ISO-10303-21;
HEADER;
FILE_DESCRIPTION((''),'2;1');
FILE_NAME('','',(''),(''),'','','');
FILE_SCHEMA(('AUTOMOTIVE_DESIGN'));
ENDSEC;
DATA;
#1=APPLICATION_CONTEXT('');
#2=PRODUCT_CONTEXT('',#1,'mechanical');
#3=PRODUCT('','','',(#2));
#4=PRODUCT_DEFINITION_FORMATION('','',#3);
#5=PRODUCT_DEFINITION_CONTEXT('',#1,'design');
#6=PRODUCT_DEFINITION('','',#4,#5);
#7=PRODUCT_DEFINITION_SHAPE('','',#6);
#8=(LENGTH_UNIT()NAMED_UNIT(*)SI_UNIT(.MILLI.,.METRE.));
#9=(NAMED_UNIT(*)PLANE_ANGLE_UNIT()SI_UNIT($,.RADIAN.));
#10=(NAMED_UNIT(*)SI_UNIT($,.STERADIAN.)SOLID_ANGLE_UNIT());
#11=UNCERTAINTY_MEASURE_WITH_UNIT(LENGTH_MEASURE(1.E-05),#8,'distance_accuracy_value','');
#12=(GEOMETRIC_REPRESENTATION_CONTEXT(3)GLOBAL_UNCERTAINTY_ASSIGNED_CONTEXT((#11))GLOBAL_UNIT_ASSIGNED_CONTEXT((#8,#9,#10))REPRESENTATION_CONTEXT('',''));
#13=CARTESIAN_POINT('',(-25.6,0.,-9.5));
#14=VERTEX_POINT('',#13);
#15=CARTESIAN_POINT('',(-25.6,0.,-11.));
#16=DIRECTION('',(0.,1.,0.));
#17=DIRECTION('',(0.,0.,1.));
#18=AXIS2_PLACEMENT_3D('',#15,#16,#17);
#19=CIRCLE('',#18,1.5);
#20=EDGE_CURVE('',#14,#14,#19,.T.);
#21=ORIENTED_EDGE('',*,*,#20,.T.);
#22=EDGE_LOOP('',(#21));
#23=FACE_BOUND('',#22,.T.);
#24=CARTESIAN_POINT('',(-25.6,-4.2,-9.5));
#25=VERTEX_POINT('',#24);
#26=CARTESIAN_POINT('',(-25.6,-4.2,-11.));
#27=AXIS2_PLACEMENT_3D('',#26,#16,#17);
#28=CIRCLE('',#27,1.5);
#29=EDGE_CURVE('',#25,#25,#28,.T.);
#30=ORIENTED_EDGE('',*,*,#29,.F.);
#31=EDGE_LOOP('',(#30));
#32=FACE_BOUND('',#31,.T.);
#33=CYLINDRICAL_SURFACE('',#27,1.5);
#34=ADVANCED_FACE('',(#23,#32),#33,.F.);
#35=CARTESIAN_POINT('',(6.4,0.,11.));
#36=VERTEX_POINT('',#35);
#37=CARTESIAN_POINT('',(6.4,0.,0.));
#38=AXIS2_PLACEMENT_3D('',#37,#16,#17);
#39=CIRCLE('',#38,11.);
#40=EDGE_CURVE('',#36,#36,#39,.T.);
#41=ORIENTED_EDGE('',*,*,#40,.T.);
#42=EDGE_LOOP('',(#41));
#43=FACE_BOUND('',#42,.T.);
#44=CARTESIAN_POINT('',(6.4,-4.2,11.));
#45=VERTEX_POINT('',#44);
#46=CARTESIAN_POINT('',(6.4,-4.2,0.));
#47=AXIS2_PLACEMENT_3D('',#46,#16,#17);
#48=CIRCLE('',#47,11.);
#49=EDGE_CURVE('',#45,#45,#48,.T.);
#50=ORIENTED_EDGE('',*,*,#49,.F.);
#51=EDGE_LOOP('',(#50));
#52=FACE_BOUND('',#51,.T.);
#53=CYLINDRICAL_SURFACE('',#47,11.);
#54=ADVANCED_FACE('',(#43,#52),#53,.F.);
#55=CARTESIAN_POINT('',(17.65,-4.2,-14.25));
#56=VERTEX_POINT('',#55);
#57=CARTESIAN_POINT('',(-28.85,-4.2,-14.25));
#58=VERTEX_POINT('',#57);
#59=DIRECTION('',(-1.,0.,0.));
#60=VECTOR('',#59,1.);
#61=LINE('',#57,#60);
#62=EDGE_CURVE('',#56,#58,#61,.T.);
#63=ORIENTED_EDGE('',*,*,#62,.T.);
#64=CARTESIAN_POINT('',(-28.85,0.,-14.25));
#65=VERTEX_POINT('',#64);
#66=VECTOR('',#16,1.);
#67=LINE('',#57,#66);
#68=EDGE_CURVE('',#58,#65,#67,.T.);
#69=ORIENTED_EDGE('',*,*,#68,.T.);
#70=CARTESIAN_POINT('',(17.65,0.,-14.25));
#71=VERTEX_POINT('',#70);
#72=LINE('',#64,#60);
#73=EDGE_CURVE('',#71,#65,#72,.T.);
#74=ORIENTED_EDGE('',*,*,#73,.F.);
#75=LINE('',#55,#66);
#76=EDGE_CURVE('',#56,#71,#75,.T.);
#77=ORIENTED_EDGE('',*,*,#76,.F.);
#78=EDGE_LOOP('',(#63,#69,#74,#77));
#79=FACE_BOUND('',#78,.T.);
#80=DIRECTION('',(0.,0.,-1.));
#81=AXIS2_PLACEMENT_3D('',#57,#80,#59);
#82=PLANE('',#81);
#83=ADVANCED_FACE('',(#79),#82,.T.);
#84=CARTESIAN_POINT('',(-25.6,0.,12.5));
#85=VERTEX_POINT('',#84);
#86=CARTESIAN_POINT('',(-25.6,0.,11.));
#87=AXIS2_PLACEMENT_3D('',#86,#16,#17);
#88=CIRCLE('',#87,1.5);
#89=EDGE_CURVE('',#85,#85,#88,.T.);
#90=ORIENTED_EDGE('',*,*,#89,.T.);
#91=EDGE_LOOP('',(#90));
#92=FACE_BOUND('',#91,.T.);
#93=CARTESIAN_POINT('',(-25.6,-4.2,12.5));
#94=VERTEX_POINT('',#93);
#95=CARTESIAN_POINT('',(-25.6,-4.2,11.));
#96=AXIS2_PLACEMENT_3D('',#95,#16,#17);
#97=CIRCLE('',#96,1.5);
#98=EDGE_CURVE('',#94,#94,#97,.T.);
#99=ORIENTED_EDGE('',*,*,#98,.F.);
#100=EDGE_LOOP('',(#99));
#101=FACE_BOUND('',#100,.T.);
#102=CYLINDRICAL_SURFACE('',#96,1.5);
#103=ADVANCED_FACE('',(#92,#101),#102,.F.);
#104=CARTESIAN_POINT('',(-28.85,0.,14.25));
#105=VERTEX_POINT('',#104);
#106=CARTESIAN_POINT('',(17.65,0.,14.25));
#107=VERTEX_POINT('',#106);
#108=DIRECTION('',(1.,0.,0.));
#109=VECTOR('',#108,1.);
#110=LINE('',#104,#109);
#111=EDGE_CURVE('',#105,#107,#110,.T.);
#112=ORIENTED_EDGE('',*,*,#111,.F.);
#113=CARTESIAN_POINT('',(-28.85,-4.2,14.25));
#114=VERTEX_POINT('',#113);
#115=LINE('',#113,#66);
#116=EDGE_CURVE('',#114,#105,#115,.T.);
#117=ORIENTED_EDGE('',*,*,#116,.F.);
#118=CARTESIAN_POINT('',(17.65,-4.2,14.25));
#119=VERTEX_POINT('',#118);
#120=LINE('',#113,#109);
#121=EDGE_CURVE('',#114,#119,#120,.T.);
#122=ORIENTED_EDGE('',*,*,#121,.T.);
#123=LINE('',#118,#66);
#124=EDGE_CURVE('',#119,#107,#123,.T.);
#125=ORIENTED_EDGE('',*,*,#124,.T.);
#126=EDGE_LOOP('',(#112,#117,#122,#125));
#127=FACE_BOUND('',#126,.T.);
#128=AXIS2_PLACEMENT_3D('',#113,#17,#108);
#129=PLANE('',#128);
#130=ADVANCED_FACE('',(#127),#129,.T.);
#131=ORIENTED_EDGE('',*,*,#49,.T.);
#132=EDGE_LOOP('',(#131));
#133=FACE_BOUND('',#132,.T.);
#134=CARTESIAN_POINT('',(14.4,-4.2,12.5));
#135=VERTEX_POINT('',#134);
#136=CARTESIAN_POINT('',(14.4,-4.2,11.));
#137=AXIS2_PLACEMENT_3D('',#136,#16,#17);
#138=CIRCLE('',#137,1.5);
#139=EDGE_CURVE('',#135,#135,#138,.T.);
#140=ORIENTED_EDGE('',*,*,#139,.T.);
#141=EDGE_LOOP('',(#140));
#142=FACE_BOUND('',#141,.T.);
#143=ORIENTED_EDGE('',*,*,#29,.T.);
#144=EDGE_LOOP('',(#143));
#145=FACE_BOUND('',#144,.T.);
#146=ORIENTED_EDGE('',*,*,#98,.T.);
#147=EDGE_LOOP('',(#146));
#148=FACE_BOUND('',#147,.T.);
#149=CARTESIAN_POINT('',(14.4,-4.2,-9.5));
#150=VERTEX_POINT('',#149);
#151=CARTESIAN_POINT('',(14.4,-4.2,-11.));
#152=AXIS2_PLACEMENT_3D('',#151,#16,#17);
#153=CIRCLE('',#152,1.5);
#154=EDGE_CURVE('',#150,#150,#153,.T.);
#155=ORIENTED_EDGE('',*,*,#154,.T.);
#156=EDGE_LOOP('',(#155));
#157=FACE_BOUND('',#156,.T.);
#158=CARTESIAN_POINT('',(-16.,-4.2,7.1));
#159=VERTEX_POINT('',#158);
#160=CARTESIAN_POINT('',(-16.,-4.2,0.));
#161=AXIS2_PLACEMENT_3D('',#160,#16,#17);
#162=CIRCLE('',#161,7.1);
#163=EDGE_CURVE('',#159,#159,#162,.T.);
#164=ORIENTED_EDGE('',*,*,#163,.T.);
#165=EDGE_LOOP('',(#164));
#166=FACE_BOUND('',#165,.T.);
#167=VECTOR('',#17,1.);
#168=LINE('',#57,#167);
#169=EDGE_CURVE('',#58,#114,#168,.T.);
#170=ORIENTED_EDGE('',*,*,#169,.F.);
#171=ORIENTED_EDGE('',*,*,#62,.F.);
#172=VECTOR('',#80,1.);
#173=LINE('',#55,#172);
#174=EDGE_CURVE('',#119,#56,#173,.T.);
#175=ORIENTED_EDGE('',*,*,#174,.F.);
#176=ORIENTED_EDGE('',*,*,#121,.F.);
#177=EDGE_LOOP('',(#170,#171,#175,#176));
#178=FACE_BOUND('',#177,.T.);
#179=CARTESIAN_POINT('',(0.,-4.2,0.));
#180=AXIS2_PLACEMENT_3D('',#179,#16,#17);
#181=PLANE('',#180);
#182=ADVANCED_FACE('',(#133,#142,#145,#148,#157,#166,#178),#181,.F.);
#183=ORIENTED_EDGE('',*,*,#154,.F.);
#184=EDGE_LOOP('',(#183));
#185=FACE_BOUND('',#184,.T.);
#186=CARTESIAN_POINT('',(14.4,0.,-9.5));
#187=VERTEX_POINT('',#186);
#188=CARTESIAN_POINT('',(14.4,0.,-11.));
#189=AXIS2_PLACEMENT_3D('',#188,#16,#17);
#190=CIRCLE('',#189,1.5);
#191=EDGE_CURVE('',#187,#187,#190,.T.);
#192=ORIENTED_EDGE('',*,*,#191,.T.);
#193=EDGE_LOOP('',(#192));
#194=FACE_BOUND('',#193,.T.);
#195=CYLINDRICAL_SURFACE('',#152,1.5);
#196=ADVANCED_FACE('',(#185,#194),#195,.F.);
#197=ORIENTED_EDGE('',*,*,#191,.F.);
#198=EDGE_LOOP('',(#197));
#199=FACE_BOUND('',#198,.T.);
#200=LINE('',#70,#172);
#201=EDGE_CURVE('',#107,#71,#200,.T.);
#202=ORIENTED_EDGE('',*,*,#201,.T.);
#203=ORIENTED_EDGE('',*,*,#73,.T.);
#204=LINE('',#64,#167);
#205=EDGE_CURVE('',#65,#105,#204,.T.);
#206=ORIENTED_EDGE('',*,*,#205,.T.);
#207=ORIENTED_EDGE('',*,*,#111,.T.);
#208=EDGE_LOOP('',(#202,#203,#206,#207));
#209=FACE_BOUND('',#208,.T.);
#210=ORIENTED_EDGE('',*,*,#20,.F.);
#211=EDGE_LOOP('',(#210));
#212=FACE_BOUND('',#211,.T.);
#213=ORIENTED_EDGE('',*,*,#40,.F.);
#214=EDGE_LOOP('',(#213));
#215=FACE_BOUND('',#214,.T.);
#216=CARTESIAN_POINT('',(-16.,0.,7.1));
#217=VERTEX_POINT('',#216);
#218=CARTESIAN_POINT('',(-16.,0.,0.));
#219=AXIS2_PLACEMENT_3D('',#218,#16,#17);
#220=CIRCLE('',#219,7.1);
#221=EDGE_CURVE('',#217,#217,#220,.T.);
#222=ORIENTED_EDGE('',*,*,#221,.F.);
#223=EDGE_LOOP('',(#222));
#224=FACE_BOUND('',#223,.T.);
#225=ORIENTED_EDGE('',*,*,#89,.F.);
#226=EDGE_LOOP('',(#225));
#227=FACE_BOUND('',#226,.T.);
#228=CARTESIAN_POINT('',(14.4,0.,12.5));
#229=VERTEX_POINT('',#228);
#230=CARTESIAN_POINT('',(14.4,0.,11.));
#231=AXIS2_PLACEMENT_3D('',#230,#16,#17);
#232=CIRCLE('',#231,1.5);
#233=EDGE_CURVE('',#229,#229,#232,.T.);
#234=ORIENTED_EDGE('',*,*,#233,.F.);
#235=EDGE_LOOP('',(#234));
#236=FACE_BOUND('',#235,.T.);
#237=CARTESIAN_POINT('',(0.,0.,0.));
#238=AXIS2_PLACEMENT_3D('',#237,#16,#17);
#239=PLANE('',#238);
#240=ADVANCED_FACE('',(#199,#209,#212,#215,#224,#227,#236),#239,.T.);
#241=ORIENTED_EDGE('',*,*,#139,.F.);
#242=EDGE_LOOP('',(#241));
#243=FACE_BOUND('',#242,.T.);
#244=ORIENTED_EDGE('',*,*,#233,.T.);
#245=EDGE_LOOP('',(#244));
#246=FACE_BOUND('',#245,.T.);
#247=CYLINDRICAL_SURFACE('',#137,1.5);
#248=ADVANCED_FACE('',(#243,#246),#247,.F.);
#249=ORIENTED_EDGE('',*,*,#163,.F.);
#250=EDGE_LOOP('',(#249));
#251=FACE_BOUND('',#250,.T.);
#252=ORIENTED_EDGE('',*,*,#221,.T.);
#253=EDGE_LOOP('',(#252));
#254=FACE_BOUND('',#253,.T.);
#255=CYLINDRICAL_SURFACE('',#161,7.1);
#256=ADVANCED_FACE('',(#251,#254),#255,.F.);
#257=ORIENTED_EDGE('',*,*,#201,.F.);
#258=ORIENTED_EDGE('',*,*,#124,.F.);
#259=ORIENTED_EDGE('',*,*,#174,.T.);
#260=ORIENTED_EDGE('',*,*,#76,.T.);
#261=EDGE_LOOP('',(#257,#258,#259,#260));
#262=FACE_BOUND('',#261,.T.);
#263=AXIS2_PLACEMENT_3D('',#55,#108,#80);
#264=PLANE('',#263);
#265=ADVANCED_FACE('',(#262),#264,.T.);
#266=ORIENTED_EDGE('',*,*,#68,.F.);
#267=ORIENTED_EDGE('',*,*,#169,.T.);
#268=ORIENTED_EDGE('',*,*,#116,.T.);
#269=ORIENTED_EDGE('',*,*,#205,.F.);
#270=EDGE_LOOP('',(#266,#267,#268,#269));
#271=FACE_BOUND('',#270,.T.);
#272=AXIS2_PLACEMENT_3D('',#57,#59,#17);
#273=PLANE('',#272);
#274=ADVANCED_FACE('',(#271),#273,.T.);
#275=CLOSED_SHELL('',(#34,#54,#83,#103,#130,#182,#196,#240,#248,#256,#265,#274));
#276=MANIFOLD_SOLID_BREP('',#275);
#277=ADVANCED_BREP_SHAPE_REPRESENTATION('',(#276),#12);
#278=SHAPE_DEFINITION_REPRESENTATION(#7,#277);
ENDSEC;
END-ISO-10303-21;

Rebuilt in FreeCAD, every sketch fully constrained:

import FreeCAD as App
import Part
import Sketcher
from FreeCAD import Vector
Q = App.Units.Quantity

doc = App.newDocument("Part")
params = doc.addObject("Spreadsheet::Sheet", "Params")
for row, (alias, value) in enumerate([
    ("sketch1_diameter", "3 mm"),
    ("sketch1_width", "46.5 mm"),
    ("sketch1_height", "28.5 mm"),
    ("pad1_length", "4.2 mm"),
    ("sketch2_diameter", "22 mm"),
    ("sketch3_diameter", "14.2 mm"),
], start=1):
    params.set(f"A{row}", alias)
    params.set(f"B{row}", "=" + value)
    params.setAlias(f"B{row}", alias)

body = doc.addObject("PartDesign::Body", "Body")

sketch1 = body.newObject("Sketcher::SketchObject", "Sketch")
sketch1.AttachmentSupport = (doc.getObject("XZ_Plane"), [""])
sketch1.MapMode = "FlatFace"
sketch1.addGeometry([
    Part.LineSegment(Vector(-28.9, -14.2, 0), Vector(-28.9, 14.2, 0)),
    Part.LineSegment(Vector(-28.9, 14.2, 0), Vector(17.6, 14.2, 0)),
    Part.LineSegment(Vector(17.6, 14.2, 0), Vector(17.6, -14.2, 0)),
    Part.LineSegment(Vector(17.6, -14.2, 0), Vector(-28.9, -14.2, 0)),
    Part.Circle(Vector(-25.6, 11, 0), Vector(0, 0, 1), 1.5),
    Part.Circle(Vector(14.4, 11, 0), Vector(0, 0, 1), 1.5),
    Part.Circle(Vector(-25.6, -11, 0), Vector(0, 0, 1), 1.5),
    Part.Circle(Vector(14.4, -11, 0), Vector(0, 0, 1), 1.5),
], False)
sketch1.addConstraint([
    Sketcher.Constraint("Coincident", 0, 2, 1, 1),
    Sketcher.Constraint("Coincident", 1, 2, 2, 1),
    Sketcher.Constraint("Coincident", 2, 2, 3, 1),
    Sketcher.Constraint("Coincident", 3, 2, 0, 1),
    Sketcher.Constraint("Vertical", 0),
    Sketcher.Constraint("Horizontal", 1),
    Sketcher.Constraint("Vertical", 2),
    Sketcher.Constraint("Horizontal", 3),
    Sketcher.Constraint("Equal", 4, 5),
    Sketcher.Constraint("Equal", 5, 6),
    Sketcher.Constraint("Equal", 6, 7),
    Sketcher.Constraint("Symmetric", 4, 3, 6, 3, -1),
    Sketcher.Constraint("Symmetric", 5, 3, 7, 3, -1),
    Sketcher.Constraint("Horizontal", 4, 3, 5, 3),
    Sketcher.Constraint("Diameter", 4, Q("3 mm")),
    Sketcher.Constraint("DistanceX", 1, 1, 1, 2, Q("46.5 mm")),
    Sketcher.Constraint("DistanceY", 0, 1, 0, 2, Q("28.5 mm")),
    Sketcher.Constraint("DistanceY", -1, 1, 4, 3, Q("11 mm")),
    Sketcher.Constraint("DistanceX", 4, 3, 5, 3, Q("40 mm")),
    Sketcher.Constraint("DistanceX", 4, 3, -1, 1, Q("25.6 mm")),
    Sketcher.Constraint("DistanceX", 0, 2, -1, 1, Q("28.85 mm")),
    Sketcher.Constraint("DistanceY", -1, 1, 0, 2, Q("14.25 mm")),
])
sketch1.setExpression("Constraints[14]", "Params.sketch1_diameter")
sketch1.setExpression("Constraints[15]", "Params.sketch1_width")
sketch1.setExpression("Constraints[16]", "Params.sketch1_height")
pad1 = body.newObject("PartDesign::Pad", "Pad")
pad1.Profile = sketch1
pad1.setExpression("Length", "Params.pad1_length")

sketch2 = body.newObject("Sketcher::SketchObject", "Sketch001")
sketch2.AttachmentSupport = (doc.getObject("XZ_Plane"), [""])
sketch2.MapMode = "FlatFace"
sketch2.addGeometry(Part.Circle(Vector(6, 0, 0), Vector(0, 0, 1), 11), False)
sketch2.addConstraint([
    Sketcher.Constraint("PointOnObject", 0, 3, -1),
    Sketcher.Constraint("Diameter", 0, Q("22 mm")),
    Sketcher.Constraint("DistanceX", -1, 1, 0, 3, Q("6.4 mm")),
])
sketch2.setExpression("Constraints[1]", "Params.sketch2_diameter")
pocket1 = body.newObject("PartDesign::Pocket", "Pocket")
pocket1.Profile = sketch2
pocket1.Type = "ThroughAll"
pocket1.Reversed = True

sketch3 = body.newObject("Sketcher::SketchObject", "Sketch002")
sketch3.AttachmentSupport = (doc.getObject("XZ_Plane"), [""])
sketch3.MapMode = "FlatFace"
sketch3.addGeometry(Part.Circle(Vector(-16, 0, 0), Vector(0, 0, 1), 7), False)
sketch3.addConstraint([
    Sketcher.Constraint("PointOnObject", 0, 3, -1),
    Sketcher.Constraint("Diameter", 0, Q("14.2 mm")),
    Sketcher.Constraint("DistanceX", 0, 3, -1, 1, Q("16 mm")),
])
sketch3.setExpression("Constraints[1]", "Params.sketch3_diameter")
pocket2 = body.newObject("PartDesign::Pocket", "Pocket001")
pocket2.Profile = sketch3
pocket2.Type = "ThroughAll"
pocket2.Reversed = True

doc.recompute()
